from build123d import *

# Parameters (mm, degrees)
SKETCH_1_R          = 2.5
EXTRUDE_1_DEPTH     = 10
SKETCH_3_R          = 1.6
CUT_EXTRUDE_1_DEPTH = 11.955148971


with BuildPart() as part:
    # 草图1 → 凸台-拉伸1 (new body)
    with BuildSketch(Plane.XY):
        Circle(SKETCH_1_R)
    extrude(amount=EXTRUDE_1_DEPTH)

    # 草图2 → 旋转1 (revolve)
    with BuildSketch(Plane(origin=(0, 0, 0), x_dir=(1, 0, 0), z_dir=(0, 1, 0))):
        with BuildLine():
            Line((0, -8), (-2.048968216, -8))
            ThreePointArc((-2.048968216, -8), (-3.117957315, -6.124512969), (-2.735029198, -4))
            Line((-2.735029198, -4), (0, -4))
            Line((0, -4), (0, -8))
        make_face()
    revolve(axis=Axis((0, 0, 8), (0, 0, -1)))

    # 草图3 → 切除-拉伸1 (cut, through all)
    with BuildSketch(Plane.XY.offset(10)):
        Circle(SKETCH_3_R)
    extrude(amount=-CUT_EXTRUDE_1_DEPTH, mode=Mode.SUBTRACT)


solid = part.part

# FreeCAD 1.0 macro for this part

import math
import FreeCAD as App
import Part
import Sketcher

V = App.Vector
Q = App.Units.Quantity

doc = App.newDocument("Part")
params = doc.addObject("Spreadsheet::Sheet", "Params")
for row, (alias, value) in enumerate([
    ("sketch1_diameter", "5 mm"),
    ("pad1_length", "10 mm"),
    ("sketch2_height", "4 mm"),
    ("revolution_angle", "360 deg"),
    ("sketch3_diameter", "3.2 mm"),
], start=1):
    params.set(f"A{row}", alias)
    params.set(f"B{row}", "=" + value)
    params.setAlias(f"B{row}", alias)

body = doc.addObject("PartDesign::Body", "Body")

# Sketch on XY plane
sketch1 = body.newObject("Sketcher::SketchObject", "Sketch")
sketch1.AttachmentSupport = (doc.getObject("XY_Plane"), [""])
sketch1.MapMode = "FlatFace"
sketch1.addGeometry(Part.Circle(V(0, 0, 0), V(0, 0, 1), 2.5), False)
sketch1.addConstraint([
    Sketcher.Constraint("Coincident", 0, 3, -1, 1),
    Sketcher.Constraint("Diameter", 0, Q("5 mm")),
])
sketch1.setExpression("Constraints[1]", "Params.sketch1_diameter")
pad1 = body.newObject("PartDesign::Pad", "Pad")
pad1.Profile = sketch1
pad1.setExpression("Length", "Params.pad1_length")

# Sketch on XZ plane
sketch2 = body.newObject("Sketcher::SketchObject", "Sketch001")
sketch2.AttachmentSupport = (doc.getObject("XZ_Plane"), [""])
sketch2.MapMode = "FlatFace"
sketch2.addGeometry([
    Part.LineSegment(V(-2, 8, 0), V(0, 8, 0)),
    Part.LineSegment(V(0, 8, 0), V(0, 4, 0)),
    Part.LineSegment(V(0, 4, 0), V(-2.7, 4, 0)),
    Part.ArcOfCircle(Part.Circle(V(0, 5.6, 0), V(0, 0, 1), 3.2), math.radians(130), math.radians(210)),
], False)
sketch2.addConstraint([
    Sketcher.Constraint("Coincident", 0, 2, 1, 1),
    Sketcher.Constraint("Coincident", 1, 2, 2, 1),
    Sketcher.Constraint("Coincident", 2, 2, 3, 2),
    Sketcher.Constraint("Coincident", 3, 1, 0, 1),
    Sketcher.Constraint("Horizontal", 0),
    Sketcher.Constraint("Vertical", 1),
    Sketcher.Constraint("Horizontal", 2),
    Sketcher.Constraint("PointOnObject", 3, 3, -2),
    Sketcher.Constraint("PointOnObject", 0, 2, -2),
    Sketcher.Constraint("DistanceY", 1, 2, 1, 1, Q("4 mm")),
    Sketcher.Constraint("DistanceY", -1, 1, 0, 2, Q("8 mm")),
    Sketcher.Constraint("Radius", 3, Q("3.163486 mm")),
    Sketcher.Constraint("DistanceX", 0, 1, 0, 2, Q("2.048968 mm")),
])
sketch2.setExpression("Constraints[9]", "Params.sketch2_height")
revolution = body.newObject("PartDesign::Revolution", "Revolution")
revolution.Profile = sketch2
revolution.ReferenceAxis = (sketch2, ["V_Axis"])
revolution.setExpression("Angle", "Params.revolution_angle")

# Sketch on XY plane
sketch3 = body.newObject("Sketcher::SketchObject", "Sketch002")
sketch3.AttachmentSupport = (doc.getObject("XY_Plane"), [""])
sketch3.MapMode = "FlatFace"
sketch3.AttachmentOffset = App.Placement(V(0, 0, 10), App.Rotation())
sketch3.addGeometry(Part.Circle(V(0, 0, 0), V(0, 0, 1), 1.6), False)
sketch3.addConstraint([
    Sketcher.Constraint("Coincident", 0, 3, -1, 1),
    Sketcher.Constraint("Diameter", 0, Q("3.2 mm")),
])
sketch3.setExpression("Constraints[1]", "Params.sketch3_diameter")
pocket1 = body.newObject("PartDesign::Pocket", "Pocket")
pocket1.Profile = sketch3
pocket1.Type = "ThroughAll"

doc.recompute()
